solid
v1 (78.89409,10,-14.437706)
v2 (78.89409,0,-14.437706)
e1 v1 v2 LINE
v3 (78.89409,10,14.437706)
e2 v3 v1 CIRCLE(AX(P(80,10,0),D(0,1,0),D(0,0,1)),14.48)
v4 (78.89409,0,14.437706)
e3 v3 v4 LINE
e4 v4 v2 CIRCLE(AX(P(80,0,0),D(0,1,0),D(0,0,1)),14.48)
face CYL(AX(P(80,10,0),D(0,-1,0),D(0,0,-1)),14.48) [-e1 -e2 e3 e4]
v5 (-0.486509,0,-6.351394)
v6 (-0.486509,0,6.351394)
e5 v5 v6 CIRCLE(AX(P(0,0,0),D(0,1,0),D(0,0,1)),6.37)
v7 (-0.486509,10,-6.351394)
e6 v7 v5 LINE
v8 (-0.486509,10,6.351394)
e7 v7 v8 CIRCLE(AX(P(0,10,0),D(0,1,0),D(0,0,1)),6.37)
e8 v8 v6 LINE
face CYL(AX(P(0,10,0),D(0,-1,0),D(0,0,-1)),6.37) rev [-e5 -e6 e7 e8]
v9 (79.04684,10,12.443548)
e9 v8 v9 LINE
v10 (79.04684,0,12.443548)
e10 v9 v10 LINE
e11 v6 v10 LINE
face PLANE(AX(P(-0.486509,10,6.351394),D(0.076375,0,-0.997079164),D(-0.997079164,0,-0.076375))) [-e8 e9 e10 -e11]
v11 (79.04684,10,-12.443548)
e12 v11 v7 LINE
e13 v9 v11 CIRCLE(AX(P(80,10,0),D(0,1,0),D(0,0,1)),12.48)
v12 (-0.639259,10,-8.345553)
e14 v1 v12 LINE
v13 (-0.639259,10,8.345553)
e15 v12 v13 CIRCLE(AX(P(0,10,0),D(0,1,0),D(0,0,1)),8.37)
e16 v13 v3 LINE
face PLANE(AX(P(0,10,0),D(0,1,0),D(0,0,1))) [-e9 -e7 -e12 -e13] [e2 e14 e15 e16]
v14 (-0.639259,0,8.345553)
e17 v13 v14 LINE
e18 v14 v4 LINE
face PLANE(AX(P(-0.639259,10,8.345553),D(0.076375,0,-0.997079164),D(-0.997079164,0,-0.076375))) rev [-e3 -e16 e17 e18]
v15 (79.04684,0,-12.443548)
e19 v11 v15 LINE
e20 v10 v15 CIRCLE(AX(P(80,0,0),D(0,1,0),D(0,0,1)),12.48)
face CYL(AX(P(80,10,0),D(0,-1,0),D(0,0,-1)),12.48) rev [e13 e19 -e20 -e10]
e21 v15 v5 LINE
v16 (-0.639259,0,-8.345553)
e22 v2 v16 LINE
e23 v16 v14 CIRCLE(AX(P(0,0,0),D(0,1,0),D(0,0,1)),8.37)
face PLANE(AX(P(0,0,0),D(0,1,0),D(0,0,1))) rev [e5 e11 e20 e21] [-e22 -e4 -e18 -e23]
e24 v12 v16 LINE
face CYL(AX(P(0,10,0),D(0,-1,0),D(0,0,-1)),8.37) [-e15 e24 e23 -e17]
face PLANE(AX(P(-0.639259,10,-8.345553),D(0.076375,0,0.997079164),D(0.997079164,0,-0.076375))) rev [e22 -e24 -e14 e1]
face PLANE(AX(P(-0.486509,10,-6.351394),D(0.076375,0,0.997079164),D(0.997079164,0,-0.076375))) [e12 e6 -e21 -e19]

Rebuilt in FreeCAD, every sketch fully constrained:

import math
import FreeCAD as App
import Part
import Sketcher
from FreeCAD import Vector
Q = App.Units.Quantity

doc = App.newDocument("Part")
body = doc.addObject("PartDesign::Body", "Body")

sketch1 = doc.addObject("Sketcher::SketchObject", "Sketch")
body.addObject(sketch1)
sketch1.AttachmentSupport = (doc.XZ_Plane, [""])
sketch1.MapMode = "FlatFace"
sketch1.addGeometry(Part.LineSegment(Vector(78.89409, -14.437706, 0), Vector(-0.639259, -8.345553, 0)), False)
sketch1.addGeometry(Part.ArcOfCircle(Part.Circle(Vector(0, 0, 0), Vector(0, 0, 1), 8.37), math.radians(94.380231), math.radians(265.619769)), False)
sketch1.addGeometry(Part.LineSegment(Vector(-0.639259, 8.345553, 0), Vector(78.89409, 14.437706, 0)), False)
sketch1.addGeometry(Part.ArcOfCircle(Part.Circle(Vector(80, 0, 0), Vector(0, 0, 1), 14.48), math.radians(-94.380231), math.radians(94.380231)), False)
sketch1.addGeometry(Part.LineSegment(Vector(-0.486509, -6.351394, 0), Vector(79.04684, -12.443548, 0)), False)
sketch1.addGeometry(Part.ArcOfCircle(Part.Circle(Vector(80, 0, 0), Vector(0, 0, 1), 12.48), math.radians(-94.380231), math.radians(94.380231)), False)
sketch1.addGeometry(Part.LineSegment(Vector(79.04684, 12.443548, 0), Vector(-0.486509, 6.351394, 0)), False)
sketch1.addGeometry(Part.ArcOfCircle(Part.Circle(Vector(0, 0, 0), Vector(0, 0, 1), 6.37), math.radians(94.380231), math.radians(265.619769)), False)
sketch1.addConstraint(Sketcher.Constraint("Tangent", 0, 2, 1, 2))
sketch1.addConstraint(Sketcher.Constraint("Tangent", 1, 1, 2, 1))
sketch1.addConstraint(Sketcher.Constraint("Tangent", 2, 2, 3, 2))
sketch1.addConstraint(Sketcher.Constraint("Tangent", 3, 1, 0, 1))
sketch1.addConstraint(Sketcher.Constraint("Tangent", 4, 2, 5, 1))
sketch1.addConstraint(Sketcher.Constraint("Tangent", 5, 2, 6, 1))
sketch1.addConstraint(Sketcher.Constraint("Tangent", 6, 2, 7, 1))
sketch1.addConstraint(Sketcher.Constraint("Tangent", 7, 2, 4, 1))
sketch1.addConstraint(Sketcher.Constraint("Coincident", 1, 3, -1, 1))
sketch1.addConstraint(Sketcher.Constraint("Coincident", 7, 3, -1, 1))
sketch1.addConstraint(Sketcher.Constraint("Coincident", 5, 3, 3, 3))
sketch1.addConstraint(Sketcher.Constraint("PointOnObject", 3, 3, -1))
sketch1.addConstraint(Sketcher.Constraint("Parallel", 0, 4))
sketch1.addConstraint(Sketcher.Constraint("Radius", 1, Q("8.37 mm")))
sketch1.addConstraint(Sketcher.Constraint("Radius", 3, Q("14.48 mm")))
sketch1.addConstraint(Sketcher.Constraint("Radius", 5, Q("12.48 mm")))
sketch1.addConstraint(Sketcher.Constraint("DistanceX", -1, 1, 3, 3, Q("80 mm")))
pad1 = doc.addObject("PartDesign::Pad", "Pad")
body.addObject(pad1)
pad1.Profile = sketch1
pad1.Length = 10
pad1.Reversed = True

doc.recompute()
